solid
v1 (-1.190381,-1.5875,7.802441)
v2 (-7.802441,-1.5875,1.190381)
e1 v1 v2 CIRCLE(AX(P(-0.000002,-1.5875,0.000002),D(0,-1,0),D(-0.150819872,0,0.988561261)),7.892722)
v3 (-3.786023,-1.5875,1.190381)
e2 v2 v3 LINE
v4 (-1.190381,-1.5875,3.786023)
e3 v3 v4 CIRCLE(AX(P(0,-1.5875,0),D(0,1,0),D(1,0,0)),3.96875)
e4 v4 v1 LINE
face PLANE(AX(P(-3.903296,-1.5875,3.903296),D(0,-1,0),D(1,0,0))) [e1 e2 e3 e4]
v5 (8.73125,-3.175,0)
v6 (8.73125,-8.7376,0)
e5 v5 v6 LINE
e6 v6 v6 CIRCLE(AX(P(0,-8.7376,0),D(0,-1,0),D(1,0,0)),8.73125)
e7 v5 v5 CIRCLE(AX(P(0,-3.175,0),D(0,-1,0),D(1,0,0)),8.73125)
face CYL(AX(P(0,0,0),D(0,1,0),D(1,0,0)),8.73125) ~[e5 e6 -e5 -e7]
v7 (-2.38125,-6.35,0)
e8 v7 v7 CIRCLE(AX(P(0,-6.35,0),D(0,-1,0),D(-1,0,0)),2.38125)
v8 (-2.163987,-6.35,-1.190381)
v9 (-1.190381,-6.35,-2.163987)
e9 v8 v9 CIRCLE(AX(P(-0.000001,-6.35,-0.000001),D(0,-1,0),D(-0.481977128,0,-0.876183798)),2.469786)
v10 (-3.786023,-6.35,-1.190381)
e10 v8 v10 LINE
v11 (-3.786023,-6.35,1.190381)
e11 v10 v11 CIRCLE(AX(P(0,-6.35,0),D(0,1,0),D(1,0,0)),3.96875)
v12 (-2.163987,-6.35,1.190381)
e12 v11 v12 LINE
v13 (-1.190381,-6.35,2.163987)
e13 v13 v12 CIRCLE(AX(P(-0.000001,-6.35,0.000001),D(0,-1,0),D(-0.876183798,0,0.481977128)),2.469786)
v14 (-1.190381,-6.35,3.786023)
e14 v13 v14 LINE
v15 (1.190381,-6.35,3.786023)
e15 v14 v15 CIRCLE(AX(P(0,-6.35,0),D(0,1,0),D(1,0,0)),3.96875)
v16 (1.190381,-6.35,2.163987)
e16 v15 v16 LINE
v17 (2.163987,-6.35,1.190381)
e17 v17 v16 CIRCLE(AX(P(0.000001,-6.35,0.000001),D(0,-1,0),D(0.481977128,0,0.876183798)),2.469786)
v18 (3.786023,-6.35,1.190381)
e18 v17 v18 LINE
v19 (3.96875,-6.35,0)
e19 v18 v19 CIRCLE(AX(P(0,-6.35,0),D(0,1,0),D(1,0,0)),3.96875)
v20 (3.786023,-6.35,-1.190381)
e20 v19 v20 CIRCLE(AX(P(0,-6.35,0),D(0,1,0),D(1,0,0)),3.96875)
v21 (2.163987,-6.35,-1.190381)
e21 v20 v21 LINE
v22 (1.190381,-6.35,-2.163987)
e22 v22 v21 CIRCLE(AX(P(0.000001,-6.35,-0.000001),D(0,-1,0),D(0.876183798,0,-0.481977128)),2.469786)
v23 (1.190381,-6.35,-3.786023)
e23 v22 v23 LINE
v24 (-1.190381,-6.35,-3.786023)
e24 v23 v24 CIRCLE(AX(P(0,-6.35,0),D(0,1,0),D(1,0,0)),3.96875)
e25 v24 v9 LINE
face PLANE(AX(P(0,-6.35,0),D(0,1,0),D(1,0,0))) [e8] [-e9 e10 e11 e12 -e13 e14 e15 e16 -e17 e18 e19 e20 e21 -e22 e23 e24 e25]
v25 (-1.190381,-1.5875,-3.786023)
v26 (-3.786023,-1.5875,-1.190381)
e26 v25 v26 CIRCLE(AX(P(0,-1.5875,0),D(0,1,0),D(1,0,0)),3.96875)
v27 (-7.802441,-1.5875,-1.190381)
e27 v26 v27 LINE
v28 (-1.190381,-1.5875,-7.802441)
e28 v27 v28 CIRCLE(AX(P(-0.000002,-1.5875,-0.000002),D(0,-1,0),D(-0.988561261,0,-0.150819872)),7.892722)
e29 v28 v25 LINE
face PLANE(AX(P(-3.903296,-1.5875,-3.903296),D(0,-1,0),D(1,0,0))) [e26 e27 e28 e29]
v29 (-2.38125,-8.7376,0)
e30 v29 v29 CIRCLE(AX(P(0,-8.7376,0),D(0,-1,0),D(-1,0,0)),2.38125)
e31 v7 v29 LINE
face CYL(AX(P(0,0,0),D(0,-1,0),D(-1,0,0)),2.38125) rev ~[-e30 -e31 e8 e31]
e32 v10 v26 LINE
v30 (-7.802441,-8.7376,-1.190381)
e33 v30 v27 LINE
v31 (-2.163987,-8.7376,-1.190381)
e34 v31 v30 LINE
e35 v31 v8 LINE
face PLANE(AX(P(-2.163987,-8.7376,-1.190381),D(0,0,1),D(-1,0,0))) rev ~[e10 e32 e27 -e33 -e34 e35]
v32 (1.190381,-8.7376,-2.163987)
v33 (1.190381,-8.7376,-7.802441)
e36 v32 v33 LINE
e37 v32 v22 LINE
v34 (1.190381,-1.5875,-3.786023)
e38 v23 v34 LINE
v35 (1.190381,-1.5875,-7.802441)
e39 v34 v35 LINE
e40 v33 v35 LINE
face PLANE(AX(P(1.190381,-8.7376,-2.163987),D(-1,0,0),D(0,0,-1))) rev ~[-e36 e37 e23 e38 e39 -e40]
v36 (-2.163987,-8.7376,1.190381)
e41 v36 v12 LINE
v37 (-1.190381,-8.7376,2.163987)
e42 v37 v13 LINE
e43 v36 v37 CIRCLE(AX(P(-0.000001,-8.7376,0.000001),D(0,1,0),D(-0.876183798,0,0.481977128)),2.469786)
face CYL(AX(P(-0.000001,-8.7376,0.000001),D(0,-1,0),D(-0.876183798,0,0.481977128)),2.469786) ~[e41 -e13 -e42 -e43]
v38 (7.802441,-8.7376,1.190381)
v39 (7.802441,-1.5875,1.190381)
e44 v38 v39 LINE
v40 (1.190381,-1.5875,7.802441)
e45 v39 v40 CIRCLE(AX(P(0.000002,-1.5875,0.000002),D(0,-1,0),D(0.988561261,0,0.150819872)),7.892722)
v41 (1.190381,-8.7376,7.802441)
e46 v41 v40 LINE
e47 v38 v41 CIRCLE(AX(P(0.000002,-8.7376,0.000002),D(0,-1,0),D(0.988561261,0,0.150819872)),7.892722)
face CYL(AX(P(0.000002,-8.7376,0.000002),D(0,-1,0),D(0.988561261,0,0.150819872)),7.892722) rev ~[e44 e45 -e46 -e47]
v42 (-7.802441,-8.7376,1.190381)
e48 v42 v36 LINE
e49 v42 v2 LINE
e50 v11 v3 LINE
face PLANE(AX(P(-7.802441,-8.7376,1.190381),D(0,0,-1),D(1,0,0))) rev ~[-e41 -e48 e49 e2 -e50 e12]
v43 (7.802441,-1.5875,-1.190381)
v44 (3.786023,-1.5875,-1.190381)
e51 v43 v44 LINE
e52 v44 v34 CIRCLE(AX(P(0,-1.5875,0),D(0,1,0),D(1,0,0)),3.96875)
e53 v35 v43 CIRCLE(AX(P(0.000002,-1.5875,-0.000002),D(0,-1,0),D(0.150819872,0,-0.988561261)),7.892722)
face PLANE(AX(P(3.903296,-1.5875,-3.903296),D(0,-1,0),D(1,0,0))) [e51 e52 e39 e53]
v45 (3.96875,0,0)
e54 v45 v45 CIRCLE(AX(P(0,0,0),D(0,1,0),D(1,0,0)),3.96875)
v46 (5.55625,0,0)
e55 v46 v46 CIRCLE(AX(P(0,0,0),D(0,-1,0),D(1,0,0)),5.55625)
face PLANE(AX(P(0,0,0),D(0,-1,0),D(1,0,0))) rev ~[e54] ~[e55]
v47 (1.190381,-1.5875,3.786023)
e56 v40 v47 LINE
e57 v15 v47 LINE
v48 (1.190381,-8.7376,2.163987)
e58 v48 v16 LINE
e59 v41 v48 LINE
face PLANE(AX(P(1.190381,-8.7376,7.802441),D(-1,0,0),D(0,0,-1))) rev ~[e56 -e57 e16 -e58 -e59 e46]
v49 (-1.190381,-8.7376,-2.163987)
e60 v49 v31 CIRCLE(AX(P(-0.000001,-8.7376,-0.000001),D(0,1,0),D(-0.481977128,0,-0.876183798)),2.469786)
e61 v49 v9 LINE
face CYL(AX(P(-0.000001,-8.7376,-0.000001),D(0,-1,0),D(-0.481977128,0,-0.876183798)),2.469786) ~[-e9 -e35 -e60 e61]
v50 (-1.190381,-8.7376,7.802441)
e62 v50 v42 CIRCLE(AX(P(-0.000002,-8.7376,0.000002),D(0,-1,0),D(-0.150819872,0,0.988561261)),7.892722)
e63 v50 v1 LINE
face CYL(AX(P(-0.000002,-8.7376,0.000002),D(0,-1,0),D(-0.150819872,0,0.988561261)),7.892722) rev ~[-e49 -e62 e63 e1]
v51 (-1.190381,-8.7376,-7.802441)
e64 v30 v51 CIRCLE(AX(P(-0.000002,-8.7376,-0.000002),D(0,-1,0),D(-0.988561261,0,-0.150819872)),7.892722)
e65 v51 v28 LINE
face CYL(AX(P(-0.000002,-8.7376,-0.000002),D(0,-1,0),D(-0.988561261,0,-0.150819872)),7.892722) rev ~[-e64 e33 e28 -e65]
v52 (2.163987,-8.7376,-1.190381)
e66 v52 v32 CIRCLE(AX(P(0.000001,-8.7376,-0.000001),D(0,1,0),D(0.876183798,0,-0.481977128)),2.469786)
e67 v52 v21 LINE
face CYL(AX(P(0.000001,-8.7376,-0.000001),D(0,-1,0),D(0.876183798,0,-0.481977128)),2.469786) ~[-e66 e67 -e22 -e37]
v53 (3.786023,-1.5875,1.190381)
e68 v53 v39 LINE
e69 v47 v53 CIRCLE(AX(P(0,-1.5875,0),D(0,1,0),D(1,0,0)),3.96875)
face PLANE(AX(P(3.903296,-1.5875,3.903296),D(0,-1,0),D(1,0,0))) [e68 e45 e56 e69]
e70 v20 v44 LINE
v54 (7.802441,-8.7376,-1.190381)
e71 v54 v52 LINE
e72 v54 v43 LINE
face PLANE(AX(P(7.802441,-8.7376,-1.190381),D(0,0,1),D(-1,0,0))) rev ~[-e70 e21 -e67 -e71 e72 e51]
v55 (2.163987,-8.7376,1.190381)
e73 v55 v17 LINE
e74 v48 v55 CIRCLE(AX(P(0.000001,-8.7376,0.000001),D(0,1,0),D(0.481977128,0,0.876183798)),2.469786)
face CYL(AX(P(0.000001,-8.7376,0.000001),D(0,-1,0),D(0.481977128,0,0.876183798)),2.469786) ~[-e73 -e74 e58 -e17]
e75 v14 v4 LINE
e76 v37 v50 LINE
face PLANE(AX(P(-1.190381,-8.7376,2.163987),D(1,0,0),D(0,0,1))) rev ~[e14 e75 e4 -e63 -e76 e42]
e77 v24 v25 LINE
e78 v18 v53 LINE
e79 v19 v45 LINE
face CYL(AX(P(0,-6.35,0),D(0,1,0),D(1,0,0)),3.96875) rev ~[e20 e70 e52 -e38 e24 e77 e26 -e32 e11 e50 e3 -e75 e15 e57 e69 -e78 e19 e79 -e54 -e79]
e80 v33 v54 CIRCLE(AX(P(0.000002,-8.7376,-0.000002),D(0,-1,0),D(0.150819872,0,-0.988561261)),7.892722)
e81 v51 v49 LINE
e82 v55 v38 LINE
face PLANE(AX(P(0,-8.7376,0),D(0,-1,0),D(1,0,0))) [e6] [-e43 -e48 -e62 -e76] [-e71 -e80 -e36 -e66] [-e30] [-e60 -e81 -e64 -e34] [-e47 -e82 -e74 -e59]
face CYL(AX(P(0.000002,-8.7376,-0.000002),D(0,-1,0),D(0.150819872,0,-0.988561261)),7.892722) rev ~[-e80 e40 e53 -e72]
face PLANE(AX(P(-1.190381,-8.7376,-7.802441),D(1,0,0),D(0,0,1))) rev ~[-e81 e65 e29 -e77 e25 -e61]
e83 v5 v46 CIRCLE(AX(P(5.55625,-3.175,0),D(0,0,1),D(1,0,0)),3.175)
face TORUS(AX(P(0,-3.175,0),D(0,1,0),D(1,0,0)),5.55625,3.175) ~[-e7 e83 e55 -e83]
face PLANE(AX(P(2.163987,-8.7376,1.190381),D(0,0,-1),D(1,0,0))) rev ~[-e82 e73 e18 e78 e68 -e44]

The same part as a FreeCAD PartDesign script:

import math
import FreeCAD as App
import Part
import Sketcher

V = App.Vector
Q = App.Units.Quantity


def edges_at(feature, points):
    """Names of the edges that pass closest to the given points."""
    edges = feature.Shape.Edges
    near = lambda p: min(range(len(edges)), key=lambda i: edges[i].distToShape(Part.Vertex(*p))[0])
    return sorted({f"Edge{near(p) + 1}" for p in points})

doc = App.newDocument("Part")
body = doc.addObject("PartDesign::Body", "Body")

sketch1 = body.newObject("Sketcher::SketchObject", "Sketch")
sketch1.AttachmentSupport = (doc.getObject("XZ_Plane"), [""])
sketch1.MapMode = "FlatFace"
sketch1.addGeometry(Part.Circle(V(0, 0, 0), V(0, 0, 1), 9), False)
sketch1.addConstraint(Sketcher.Constraint("Coincident", 0, 3, -1, 1))
sketch1.addConstraint(Sketcher.Constraint("Diameter", 0, Q("0.6875 in")))
pad1 = body.newObject("PartDesign::Pad", "Pad")
pad1.Profile = sketch1
pad1.Length = Q("0.344 in")

sketch2 = body.newObject("Sketcher::SketchObject", "Sketch001")
sketch2.AttachmentSupport = (doc.getObject("XZ_Plane"), [""])
sketch2.MapMode = "FlatFace"
sketch2.AttachmentOffset = App.Placement(V(0, 0, 0.344 * 25.4), App.Rotation())
sketch2.addGeometry(Part.ArcOfCircle(Part.Circle(V(0, 0, 0), V(0, 0, 1), 2.5), math.radians(29), math.radians(61)), False)
sketch2.addGeometry(Part.LineSegment(V(2.2, 1.2, 0), V(7.8, 1.2, 0)), False)
sketch2.addGeometry(Part.ArcOfCircle(Part.Circle(V(0, 0, 0), V(0, 0, 1), 7.9), math.radians(9), math.radians(81)), False)
sketch2.addGeometry(Part.LineSegment(V(1.2, 7.8, 0), V(1.2, 2.2, 0)), False)
sketch2.addGeometry(Part.LineSegment(V(-1.2, 2.2, 0), V(-1.2, 7.8, 0)), False)
sketch2.addGeometry(Part.ArcOfCircle(Part.Circle(V(0, 0, 0), V(0, 0, 1), 7.9), math.radians(99), math.radians(171)), False)
sketch2.addGeometry(Part.LineSegment(V(-7.8, 1.2, 0), V(-2.2, 1.2, 0)), False)
sketch2.addGeometry(Part.ArcOfCircle(Part.Circle(V(0, 0, 0), V(0, 0, 1), 2.5), math.radians(119), math.radians(151)), False)
sketch2.addGeometry(Part.LineSegment(V(-2.2, -1.2, 0), V(-7.8, -1.2, 0)), False)
sketch2.addGeometry(Part.ArcOfCircle(Part.Circle(V(0, 0, 0), V(0, 0, 1), 7.9), math.radians(-171), math.radians(-99)), False)
sketch2.addGeometry(Part.LineSegment(V(-1.2, -7.8, 0), V(-1.2, -2.2, 0)), False)
sketch2.addGeometry(Part.ArcOfCircle(Part.Circle(V(0, 0, 0), V(0, 0, 1), 2.5), math.radians(-151), math.radians(-119)), False)
sketch2.addGeometry(Part.LineSegment(V(1.2, -2.2, 0), V(1.2, -7.8, 0)), False)
sketch2.addGeometry(Part.ArcOfCircle(Part.Circle(V(0, 0, 0), V(0, 0, 1), 7.9), math.radians(-81), math.radians(-9)), False)
sketch2.addGeometry(Part.LineSegment(V(7.8, -1.2, 0), V(2.2, -1.2, 0)), False)
sketch2.addGeometry(Part.ArcOfCircle(Part.Circle(V(0, 0, 0), V(0, 0, 1), 2.5), math.radians(-61), math.radians(-29)), False)
sketch2.addConstraint(Sketcher.Constraint("Coincident", 0, 1, 1, 1))
sketch2.addConstraint(Sketcher.Constraint("Coincident", 1, 2, 2, 1))
sketch2.addConstraint(Sketcher.Constraint("Coincident", 2, 2, 3, 1))
sketch2.addConstraint(Sketcher.Constraint("Coincident", 3, 2, 0, 2))
sketch2.addConstraint(Sketcher.Constraint("Coincident", 4, 2, 5, 1))
sketch2.addConstraint(Sketcher.Constraint("Coincident", 5, 2, 6, 1))
sketch2.addConstraint(Sketcher.Constraint("Coincident", 6, 2, 7, 2))
sketch2.addConstraint(Sketcher.Constraint("Coincident", 7, 1, 4, 1))
sketch2.addConstraint(Sketcher.Constraint("Coincident", 8, 2, 9, 1))
sketch2.addConstraint(Sketcher.Constraint("Coincident", 9, 2, 10, 1))
sketch2.addConstraint(Sketcher.Constraint("Coincident", 10, 2, 11, 2))
sketch2.addConstraint(Sketcher.Constraint("Coincident", 11, 1, 8, 1))
sketch2.addConstraint(Sketcher.Constraint("Coincident", 12, 2, 13, 1))
sketch2.addConstraint(Sketcher.Constraint("Coincident", 13, 2, 14, 1))
sketch2.addConstraint(Sketcher.Constraint("Coincident", 14, 2, 15, 2))
sketch2.addConstraint(Sketcher.Constraint("Coincident", 15, 1, 12, 1))
sketch2.addConstraint(Sketcher.Constraint("Horizontal", 1))
sketch2.addConstraint(Sketcher.Constraint("Vertical", 3))
sketch2.addConstraint(Sketcher.Constraint("Vertical", 4))
sketch2.addConstraint(Sketcher.Constraint("Horizontal", 6))
sketch2.addConstraint(Sketcher.Constraint("Horizontal", 8))
sketch2.addConstraint(Sketcher.Constraint("Vertical", 10))
sketch2.addConstraint(Sketcher.Constraint("Vertical", 12))
sketch2.addConstraint(Sketcher.Constraint("Horizontal", 14))
sketch2.addConstraint(Sketcher.Constraint("Coincident", 0, 3, -1, 1))
sketch2.addConstraint(Sketcher.Constraint("Coincident", 2, 3, -1, 1))
sketch2.addConstraint(Sketcher.Constraint("Coincident", 5, 3, -1, 1))
sketch2.addConstraint(Sketcher.Constraint("Coincident", 7, 3, -1, 1))
sketch2.addConstraint(Sketcher.Constraint("Coincident", 9, 3, -1, 1))
sketch2.addConstraint(Sketcher.Constraint("Coincident", 11, 3, -1, 1))
sketch2.addConstraint(Sketcher.Constraint("Coincident", 13, 3, -1, 1))
sketch2.addConstraint(Sketcher.Constraint("Coincident", 15, 3, -1, 1))
sketch2.addConstraint(Sketcher.Constraint("Equal", 2, 5))
sketch2.addConstraint(Sketcher.Constraint("Equal", 0, 7))
sketch2.addConstraint(Sketcher.Constraint("Equal", 5, 9))
sketch2.addConstraint(Sketcher.Constraint("Equal", 7, 11))
sketch2.addConstraint(Sketcher.Constraint("Equal", 9, 13))
sketch2.addConstraint(Sketcher.Constraint("Equal", 11, 15))
sketch2.addConstraint(Sketcher.Constraint("Horizontal", 2, 2, 4, 2))
sketch2.addConstraint(Sketcher.Constraint("Horizontal", 1, 2, 5, 2))
sketch2.addConstraint(Sketcher.Constraint("Horizontal", 9, 2, 12, 2))
sketch2.addConstraint(Sketcher.Constraint("Horizontal", 11, 1, 13, 2))
sketch2.addConstraint(Sketcher.Constraint("Vertical", 5, 2, 8, 2))
sketch2.addConstraint(Sketcher.Constraint("Vertical", 7, 1, 9, 2))
sketch2.addConstraint(Sketcher.Constraint("Equal", 14, 3))
sketch2.addConstraint(Sketcher.Constraint("Radius", 0, Q("2.469786 mm")))
sketch2.addConstraint(Sketcher.Constraint("Radius", 2, Q("7.892722 mm")))
sketch2.addConstraint(Sketcher.Constraint("DistanceX", 1, 1, 1, 2, Q("5.638454 mm")))
pocket1 = body.newObject("PartDesign::Pocket", "Pocket")
pocket1.Profile = sketch2
pocket1.Length = Q("0.2815 in")

sketch3 = body.newObject("Sketcher::SketchObject", "Sketch002")
sketch3.AttachmentSupport = (doc.getObject("XZ_Plane"), [""])
sketch3.MapMode = "FlatFace"
sketch3.addGeometry(Part.Circle(V(0, 0, 0), V(0, 0, 1), 2.4), False)
sketch3.addConstraint(Sketcher.Constraint("Coincident", 0, 3, -1, 1))
sketch3.addConstraint(Sketcher.Constraint("Diameter", 0, Q("0.1875 in")))
doc.recompute()
hole = body.newObject("PartDesign::Hole", "Hole")
hole.Profile = sketch3
hole.ThreadType = "None"
hole.Diameter = Q("0.1875 in")
hole.DepthType = "ThroughAll"
hole.HoleCutType = "Counterbore"
hole.HoleCutDiameter = Q("0.3125 in")
hole.HoleCutDepth = Q("0.25 in")
hole.Reversed = True
doc.recompute()

fillet = body.newObject("PartDesign::Fillet", "Fillet")
fillet.Base = (hole, edges_at(hole, [(-8.731, 0, 0)]))
fillet.Radius = Q("0.125 in")

doc.recompute()
